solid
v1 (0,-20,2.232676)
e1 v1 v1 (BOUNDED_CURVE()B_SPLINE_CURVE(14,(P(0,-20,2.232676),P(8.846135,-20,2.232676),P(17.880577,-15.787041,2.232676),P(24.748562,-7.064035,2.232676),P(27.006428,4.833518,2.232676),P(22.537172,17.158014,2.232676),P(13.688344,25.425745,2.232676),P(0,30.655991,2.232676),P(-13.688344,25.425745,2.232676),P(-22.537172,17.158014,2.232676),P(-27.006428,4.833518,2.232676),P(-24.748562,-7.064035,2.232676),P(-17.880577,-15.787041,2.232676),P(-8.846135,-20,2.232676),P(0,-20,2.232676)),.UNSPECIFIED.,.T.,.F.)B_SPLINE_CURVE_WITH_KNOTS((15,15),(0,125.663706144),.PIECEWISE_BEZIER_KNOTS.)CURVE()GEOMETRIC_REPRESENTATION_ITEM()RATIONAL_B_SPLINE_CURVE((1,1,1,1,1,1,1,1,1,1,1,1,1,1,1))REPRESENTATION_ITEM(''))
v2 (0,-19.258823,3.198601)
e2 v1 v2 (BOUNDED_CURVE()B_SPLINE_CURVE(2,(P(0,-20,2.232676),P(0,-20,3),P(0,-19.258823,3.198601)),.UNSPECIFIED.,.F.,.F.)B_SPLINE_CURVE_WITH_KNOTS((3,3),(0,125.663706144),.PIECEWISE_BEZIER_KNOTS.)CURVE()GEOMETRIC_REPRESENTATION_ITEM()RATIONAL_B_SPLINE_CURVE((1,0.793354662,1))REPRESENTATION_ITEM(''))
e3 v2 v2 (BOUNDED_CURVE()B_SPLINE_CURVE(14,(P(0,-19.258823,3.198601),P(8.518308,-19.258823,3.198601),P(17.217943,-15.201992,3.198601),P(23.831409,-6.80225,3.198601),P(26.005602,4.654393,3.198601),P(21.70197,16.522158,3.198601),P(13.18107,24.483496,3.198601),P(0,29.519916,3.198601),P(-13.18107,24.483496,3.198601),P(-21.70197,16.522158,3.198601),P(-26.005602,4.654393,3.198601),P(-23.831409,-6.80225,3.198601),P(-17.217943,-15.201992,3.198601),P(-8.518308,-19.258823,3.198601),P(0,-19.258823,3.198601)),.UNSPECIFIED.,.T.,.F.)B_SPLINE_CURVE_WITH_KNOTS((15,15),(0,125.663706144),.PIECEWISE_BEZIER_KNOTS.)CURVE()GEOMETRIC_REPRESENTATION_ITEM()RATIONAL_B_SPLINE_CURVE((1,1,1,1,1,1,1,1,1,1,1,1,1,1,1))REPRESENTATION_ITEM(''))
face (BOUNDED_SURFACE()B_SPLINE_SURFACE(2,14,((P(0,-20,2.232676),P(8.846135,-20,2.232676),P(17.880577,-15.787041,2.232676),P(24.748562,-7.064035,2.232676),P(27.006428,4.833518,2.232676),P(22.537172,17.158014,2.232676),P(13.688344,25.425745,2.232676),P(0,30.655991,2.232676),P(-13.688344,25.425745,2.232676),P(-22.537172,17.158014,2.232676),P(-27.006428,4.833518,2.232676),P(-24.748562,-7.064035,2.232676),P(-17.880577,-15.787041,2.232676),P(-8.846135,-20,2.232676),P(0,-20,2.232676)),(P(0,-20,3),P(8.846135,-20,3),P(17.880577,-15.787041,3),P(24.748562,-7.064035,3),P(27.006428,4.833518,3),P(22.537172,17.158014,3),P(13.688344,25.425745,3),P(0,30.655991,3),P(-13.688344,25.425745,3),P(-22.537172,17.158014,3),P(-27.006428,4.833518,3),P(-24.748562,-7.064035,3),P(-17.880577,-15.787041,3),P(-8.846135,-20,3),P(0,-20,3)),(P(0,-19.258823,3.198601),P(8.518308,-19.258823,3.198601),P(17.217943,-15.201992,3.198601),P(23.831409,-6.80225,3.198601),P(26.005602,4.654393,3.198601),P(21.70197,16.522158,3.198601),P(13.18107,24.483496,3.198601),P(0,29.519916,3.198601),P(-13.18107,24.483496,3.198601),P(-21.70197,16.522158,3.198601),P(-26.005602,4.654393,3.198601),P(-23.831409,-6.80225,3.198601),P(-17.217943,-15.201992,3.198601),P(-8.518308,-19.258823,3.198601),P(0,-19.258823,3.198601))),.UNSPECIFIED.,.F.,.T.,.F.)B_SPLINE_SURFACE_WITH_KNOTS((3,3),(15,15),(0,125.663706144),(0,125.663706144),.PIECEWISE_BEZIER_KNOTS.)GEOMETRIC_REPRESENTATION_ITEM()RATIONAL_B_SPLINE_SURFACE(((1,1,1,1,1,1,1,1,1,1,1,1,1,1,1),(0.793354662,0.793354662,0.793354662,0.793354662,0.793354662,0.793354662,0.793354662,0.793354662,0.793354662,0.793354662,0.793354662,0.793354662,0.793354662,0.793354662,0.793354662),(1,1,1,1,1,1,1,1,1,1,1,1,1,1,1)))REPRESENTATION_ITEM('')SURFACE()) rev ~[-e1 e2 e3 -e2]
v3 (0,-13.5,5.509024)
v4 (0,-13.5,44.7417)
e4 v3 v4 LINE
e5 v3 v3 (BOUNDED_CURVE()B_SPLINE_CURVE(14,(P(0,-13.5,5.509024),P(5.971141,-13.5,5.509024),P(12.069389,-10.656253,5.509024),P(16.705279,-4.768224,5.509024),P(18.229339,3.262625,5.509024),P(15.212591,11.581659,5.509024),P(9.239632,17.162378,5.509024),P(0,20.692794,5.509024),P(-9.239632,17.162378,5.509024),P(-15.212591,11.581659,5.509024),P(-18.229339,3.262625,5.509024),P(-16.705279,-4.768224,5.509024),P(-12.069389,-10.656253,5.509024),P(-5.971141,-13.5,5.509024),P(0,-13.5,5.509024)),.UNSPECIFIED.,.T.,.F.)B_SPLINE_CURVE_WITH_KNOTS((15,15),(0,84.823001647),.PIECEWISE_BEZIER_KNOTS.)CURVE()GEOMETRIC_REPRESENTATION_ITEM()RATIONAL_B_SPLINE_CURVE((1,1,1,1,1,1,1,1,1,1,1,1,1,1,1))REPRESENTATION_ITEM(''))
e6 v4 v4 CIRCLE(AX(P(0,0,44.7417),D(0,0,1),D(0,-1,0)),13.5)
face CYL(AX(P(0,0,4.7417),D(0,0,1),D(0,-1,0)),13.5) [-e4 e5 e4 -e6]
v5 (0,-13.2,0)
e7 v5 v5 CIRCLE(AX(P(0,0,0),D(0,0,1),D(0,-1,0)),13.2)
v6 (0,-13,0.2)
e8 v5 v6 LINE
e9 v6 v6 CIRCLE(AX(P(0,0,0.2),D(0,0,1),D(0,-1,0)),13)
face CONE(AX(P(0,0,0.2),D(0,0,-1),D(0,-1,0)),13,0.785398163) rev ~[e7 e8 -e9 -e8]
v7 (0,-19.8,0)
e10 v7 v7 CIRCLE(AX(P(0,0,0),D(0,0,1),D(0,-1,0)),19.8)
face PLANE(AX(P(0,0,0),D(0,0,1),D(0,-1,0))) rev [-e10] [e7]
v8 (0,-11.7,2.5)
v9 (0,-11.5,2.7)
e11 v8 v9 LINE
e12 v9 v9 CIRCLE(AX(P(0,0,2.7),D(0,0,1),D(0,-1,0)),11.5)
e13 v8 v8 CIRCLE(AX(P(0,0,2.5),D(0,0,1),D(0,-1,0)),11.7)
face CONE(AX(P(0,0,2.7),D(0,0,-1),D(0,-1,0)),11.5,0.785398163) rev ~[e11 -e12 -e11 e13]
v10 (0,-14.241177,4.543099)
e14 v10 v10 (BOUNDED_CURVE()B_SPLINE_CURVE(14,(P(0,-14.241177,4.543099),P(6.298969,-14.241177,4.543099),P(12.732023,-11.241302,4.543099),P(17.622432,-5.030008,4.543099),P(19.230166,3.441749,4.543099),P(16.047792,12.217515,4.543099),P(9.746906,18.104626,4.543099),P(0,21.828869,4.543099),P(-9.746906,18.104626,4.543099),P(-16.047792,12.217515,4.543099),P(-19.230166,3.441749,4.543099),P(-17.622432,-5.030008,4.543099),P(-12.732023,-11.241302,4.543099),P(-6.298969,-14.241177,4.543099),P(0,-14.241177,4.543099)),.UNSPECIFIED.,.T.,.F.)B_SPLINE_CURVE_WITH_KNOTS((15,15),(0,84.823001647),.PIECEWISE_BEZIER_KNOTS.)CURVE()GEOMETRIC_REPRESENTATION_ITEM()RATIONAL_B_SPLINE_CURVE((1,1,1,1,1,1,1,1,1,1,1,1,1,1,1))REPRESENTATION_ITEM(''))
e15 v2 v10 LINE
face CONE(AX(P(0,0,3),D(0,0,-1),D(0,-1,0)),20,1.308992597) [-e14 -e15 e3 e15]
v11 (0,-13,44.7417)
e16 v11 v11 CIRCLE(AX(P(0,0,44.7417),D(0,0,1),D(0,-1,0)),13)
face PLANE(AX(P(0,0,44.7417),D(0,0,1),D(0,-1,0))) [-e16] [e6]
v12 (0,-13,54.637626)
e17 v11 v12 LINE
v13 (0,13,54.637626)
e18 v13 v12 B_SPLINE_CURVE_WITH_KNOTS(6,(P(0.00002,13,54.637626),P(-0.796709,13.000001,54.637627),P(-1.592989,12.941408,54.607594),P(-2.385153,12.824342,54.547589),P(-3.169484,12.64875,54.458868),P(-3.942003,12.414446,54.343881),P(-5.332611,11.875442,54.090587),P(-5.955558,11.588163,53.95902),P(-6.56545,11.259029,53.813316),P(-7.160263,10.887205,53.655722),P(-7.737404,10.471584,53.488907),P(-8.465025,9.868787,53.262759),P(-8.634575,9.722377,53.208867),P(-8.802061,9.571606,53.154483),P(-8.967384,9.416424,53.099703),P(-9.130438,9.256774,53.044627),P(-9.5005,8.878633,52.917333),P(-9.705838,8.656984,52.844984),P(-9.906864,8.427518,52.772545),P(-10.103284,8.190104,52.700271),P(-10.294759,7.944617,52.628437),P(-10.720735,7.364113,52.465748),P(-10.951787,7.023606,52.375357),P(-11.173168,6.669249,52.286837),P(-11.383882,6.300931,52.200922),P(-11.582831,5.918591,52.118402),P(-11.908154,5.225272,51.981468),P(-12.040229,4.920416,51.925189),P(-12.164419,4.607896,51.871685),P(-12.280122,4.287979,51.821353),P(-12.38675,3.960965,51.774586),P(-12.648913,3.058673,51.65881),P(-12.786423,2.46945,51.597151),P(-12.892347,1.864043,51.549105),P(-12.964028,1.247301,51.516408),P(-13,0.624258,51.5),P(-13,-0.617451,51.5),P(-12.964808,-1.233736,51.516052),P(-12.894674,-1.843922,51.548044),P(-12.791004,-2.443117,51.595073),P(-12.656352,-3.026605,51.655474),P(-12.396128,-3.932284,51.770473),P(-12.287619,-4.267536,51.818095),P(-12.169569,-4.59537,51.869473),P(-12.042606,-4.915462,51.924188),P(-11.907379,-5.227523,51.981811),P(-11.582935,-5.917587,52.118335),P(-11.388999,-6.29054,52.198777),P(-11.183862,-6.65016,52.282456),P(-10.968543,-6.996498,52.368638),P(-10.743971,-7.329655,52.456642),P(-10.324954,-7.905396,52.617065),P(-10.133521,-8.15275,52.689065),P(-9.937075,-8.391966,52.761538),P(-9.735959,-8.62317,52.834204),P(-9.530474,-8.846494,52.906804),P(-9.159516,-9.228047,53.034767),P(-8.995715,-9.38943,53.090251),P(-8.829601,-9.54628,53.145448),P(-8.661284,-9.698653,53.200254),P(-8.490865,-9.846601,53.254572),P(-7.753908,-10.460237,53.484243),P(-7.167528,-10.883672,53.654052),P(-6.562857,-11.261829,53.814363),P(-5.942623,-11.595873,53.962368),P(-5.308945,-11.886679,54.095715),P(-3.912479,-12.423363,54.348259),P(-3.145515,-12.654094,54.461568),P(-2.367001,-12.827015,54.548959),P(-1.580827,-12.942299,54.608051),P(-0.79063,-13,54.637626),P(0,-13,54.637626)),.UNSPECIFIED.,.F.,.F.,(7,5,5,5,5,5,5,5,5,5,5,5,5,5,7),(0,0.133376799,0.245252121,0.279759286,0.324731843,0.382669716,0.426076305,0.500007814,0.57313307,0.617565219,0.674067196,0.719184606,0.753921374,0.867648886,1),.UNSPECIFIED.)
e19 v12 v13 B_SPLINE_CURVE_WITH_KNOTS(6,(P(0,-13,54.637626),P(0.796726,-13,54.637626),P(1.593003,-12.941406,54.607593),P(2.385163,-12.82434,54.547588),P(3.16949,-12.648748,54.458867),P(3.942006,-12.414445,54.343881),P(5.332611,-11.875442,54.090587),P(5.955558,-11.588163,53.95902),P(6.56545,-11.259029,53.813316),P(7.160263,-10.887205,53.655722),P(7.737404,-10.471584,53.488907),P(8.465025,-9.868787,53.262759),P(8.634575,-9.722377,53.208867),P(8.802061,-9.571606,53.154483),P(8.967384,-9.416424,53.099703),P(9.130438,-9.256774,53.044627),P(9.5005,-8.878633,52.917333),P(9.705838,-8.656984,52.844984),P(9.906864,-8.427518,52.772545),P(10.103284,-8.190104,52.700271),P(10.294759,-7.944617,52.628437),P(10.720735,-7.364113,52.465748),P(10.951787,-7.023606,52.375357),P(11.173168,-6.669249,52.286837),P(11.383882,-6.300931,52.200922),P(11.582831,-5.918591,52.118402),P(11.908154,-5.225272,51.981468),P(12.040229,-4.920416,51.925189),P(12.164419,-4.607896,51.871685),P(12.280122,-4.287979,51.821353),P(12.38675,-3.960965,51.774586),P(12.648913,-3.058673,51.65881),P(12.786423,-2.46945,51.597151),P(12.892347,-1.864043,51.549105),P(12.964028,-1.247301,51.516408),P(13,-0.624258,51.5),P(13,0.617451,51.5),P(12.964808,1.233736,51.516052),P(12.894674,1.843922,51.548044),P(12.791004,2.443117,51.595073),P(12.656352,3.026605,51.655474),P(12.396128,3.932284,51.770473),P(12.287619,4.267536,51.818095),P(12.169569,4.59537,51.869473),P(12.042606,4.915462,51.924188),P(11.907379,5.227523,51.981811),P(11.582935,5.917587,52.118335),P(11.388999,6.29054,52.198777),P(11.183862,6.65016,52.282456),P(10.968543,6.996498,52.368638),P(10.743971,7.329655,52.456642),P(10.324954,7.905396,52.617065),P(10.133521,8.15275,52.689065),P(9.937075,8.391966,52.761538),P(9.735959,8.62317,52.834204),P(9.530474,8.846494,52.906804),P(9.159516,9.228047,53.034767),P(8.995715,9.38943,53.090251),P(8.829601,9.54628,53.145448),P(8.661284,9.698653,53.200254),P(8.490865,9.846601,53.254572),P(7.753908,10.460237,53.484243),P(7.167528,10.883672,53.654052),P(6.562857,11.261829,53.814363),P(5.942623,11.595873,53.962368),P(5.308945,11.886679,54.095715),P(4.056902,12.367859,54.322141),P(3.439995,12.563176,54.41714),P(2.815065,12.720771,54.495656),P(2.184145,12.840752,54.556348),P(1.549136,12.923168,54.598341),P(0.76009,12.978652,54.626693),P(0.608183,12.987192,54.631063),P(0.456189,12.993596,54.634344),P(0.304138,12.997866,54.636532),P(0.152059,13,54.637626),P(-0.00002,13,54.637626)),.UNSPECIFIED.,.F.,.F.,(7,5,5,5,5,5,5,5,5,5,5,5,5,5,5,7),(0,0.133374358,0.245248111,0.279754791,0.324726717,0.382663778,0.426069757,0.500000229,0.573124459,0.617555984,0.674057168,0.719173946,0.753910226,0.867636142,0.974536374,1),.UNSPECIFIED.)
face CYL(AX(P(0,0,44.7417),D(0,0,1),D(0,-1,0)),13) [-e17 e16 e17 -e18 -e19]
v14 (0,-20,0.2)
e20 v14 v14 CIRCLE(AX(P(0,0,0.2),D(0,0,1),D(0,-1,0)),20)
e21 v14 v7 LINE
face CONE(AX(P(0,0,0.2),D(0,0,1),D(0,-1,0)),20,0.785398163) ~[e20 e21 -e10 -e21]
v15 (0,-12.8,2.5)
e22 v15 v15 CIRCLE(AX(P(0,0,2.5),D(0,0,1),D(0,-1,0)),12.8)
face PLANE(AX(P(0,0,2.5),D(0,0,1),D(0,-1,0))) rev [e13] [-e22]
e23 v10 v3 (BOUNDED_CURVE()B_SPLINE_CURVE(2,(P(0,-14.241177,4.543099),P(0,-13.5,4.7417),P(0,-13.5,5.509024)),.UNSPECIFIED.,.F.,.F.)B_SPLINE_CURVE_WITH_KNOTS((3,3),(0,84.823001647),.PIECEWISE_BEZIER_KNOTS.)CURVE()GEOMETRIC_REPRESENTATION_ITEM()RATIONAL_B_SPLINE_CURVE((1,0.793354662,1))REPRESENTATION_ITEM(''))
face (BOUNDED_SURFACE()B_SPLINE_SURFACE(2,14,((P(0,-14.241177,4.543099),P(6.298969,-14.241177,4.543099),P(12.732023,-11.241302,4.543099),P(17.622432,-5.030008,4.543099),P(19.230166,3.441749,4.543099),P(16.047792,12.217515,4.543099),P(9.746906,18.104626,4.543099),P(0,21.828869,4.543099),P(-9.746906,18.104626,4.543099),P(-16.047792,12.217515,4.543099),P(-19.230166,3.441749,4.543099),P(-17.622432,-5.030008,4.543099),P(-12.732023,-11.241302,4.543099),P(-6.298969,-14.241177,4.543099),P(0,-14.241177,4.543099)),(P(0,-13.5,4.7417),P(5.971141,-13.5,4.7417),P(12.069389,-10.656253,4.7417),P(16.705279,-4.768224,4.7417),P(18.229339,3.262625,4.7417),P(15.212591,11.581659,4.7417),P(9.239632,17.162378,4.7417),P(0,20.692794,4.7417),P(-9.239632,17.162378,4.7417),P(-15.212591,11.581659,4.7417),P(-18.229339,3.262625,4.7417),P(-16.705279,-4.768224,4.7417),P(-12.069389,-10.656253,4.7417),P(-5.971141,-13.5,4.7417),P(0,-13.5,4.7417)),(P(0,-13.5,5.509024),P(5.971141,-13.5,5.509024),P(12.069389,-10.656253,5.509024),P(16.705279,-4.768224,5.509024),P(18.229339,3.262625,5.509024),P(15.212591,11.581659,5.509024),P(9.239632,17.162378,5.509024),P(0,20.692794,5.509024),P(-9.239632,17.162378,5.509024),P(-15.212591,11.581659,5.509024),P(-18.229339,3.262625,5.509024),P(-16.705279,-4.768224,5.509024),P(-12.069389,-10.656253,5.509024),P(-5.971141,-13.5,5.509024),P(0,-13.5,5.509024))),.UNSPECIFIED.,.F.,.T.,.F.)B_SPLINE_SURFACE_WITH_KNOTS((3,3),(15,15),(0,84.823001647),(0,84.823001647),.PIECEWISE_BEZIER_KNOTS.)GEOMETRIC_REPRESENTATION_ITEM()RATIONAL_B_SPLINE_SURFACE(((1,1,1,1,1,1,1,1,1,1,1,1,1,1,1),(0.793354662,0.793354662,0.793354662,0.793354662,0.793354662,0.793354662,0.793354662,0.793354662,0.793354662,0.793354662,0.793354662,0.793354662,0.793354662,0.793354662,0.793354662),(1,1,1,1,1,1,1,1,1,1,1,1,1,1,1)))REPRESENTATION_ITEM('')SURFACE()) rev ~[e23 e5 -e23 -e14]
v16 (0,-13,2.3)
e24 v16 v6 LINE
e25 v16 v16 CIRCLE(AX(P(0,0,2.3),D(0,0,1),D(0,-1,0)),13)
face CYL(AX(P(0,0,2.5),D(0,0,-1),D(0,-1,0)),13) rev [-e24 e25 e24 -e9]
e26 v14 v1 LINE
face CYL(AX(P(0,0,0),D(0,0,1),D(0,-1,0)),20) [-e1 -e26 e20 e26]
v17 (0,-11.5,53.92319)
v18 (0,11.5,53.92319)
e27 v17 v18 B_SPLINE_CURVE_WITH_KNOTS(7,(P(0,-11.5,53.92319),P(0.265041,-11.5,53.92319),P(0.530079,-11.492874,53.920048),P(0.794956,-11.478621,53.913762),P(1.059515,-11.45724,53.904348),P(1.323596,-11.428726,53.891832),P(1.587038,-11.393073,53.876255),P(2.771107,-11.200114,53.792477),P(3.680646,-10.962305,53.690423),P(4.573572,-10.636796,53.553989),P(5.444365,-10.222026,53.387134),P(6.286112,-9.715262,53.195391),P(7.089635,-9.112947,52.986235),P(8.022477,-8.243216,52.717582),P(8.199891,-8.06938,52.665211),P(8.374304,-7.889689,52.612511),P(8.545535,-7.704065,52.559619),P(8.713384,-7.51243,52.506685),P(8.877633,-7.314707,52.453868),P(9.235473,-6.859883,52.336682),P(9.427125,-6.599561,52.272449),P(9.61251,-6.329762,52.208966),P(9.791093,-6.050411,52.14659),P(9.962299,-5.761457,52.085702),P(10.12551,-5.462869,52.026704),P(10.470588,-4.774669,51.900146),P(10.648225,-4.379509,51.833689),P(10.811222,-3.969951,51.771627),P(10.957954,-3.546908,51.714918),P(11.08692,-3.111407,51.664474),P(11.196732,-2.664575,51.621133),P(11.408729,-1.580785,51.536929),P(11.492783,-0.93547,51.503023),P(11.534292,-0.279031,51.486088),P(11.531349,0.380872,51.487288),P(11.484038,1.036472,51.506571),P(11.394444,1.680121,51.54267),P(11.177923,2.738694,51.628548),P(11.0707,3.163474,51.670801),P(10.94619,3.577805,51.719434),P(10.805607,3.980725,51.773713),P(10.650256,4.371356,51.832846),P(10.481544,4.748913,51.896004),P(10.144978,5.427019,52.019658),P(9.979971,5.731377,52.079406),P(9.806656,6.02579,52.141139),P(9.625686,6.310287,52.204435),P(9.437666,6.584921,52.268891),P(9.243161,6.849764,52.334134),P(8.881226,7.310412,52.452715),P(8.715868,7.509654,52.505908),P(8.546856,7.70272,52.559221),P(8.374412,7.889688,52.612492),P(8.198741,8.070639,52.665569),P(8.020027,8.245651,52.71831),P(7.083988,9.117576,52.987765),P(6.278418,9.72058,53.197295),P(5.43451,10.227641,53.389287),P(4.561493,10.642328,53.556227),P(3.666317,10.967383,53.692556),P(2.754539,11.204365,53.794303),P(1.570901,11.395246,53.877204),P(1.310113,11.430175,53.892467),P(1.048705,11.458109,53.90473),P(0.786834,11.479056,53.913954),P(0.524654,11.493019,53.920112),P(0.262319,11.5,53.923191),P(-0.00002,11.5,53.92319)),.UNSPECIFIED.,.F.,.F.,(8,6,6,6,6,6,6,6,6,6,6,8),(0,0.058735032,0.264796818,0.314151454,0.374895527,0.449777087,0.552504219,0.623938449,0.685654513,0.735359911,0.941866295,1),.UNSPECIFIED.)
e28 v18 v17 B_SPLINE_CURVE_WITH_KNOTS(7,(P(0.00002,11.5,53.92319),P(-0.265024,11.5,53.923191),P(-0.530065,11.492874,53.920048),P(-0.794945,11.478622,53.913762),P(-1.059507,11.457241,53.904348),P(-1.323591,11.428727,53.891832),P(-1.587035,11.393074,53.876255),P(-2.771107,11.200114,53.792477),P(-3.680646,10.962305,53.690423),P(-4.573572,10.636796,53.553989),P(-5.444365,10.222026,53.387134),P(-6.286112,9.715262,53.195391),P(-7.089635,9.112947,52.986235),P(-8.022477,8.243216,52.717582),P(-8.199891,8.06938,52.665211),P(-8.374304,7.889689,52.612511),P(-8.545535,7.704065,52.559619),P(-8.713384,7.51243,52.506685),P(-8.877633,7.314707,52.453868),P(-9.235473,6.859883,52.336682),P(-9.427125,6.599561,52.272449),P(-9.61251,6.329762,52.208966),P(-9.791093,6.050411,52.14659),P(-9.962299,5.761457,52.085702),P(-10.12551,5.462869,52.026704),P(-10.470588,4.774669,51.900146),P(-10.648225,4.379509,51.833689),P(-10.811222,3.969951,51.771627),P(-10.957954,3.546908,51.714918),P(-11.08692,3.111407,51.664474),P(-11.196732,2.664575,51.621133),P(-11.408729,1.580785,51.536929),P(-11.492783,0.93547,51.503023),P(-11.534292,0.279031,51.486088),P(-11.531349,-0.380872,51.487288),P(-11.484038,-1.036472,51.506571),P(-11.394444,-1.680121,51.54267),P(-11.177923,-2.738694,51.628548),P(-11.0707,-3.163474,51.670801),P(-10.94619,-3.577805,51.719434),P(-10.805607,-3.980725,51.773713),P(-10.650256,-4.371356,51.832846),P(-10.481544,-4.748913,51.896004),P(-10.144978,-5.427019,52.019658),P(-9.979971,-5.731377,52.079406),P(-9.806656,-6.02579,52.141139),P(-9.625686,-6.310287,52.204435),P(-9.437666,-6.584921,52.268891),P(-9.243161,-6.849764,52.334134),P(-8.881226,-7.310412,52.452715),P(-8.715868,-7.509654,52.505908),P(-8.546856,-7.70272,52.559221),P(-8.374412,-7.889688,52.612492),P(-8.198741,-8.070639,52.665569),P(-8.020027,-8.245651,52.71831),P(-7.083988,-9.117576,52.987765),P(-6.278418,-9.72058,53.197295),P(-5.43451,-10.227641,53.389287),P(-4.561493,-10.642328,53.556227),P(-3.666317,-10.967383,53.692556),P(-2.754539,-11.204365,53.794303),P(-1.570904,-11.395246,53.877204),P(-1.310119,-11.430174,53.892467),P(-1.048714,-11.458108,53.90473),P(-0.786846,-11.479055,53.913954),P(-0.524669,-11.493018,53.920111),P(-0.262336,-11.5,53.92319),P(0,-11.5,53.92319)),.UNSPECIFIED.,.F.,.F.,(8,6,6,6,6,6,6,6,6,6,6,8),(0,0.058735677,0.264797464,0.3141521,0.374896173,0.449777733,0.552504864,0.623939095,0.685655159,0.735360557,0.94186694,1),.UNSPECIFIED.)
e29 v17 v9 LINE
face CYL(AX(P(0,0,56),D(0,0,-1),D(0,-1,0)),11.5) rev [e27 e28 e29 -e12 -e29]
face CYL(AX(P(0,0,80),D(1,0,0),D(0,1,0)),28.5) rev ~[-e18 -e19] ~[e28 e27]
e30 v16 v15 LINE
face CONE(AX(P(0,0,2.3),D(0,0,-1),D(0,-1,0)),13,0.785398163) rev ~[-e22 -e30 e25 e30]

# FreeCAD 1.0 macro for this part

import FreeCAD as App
import Part
import Sketcher
Q = App.Units.Quantity


def edges_at(feature, points):
    """Names of the edges that pass closest to the given points."""
    edges = feature.Shape.Edges
    near = lambda p: min(range(len(edges)), key=lambda i: edges[i].distToShape(Part.Vertex(*p))[0])
    return sorted({f"Edge{near(p) + 1}" for p in points})


def add_polygon(sketch, points):
    """Adds a closed chain of lines whose ends are joined by coincident constraints."""
    first, n = sketch.GeometryCount, len(points)
    for a, b in zip(points, points[1:] + points[:1]):
        sketch.addGeometry(Part.LineSegment(App.Vector(*a, 0), App.Vector(*b, 0)), False)
    for i in range(n):
        sketch.addConstraint(Sketcher.Constraint("Coincident", first + i, 2, first + (i + 1) % n, 1))

doc = App.newDocument("Part")
body = doc.addObject("PartDesign::Body", "Body")

sketch1 = body.newObject("Sketcher::SketchObject", "Sketch")
sketch1.AttachmentSupport = (doc.getObject("YZ_Plane"), [""])
sketch1.MapMode = "FlatFace"
add_polygon(sketch1, [(-11.5, 2.5), (-11.5, 56), (-13, 56), (-13, 44.7), (-13.5, 44.7), (-13.5, 4.7), (-20, 3), (-20, 0), (-13, 0), (-13, 2.5)])
sketch1.addConstraint([
    Sketcher.Constraint("Vertical", 0),
    Sketcher.Constraint("Horizontal", 1),
    Sketcher.Constraint("Vertical", 2),
    Sketcher.Constraint("Horizontal", 3),
    Sketcher.Constraint("Vertical", 4),
    Sketcher.Constraint("Vertical", 6),
    Sketcher.Constraint("Horizontal", 7),
    Sketcher.Constraint("Vertical", 8),
    Sketcher.Constraint("Horizontal", 9),
    Sketcher.Constraint("PointOnObject", 6, 2, -1),
    Sketcher.Constraint("Vertical", 2, 2, 7, 2),
    Sketcher.Constraint("DistanceY", 4, 2, 4, 1, 40.0),
    Sketcher.Constraint("DistanceY", 6, 2, 6, 1, 3.0),
    Sketcher.Constraint("DistanceY", 8, 1, 8, 2, 2.5),
    Sketcher.Constraint("DistanceY", -1, 1, 0, 2, 56.0),
    Sketcher.Constraint("DistanceX", 7, 1, 7, 2, 7.0),
    Sketcher.Constraint("Angle", 5, Q("-164.9998 deg")),
    Sketcher.Constraint("DistanceX", 1, 2, 1, 1, 1.5),
    Sketcher.Constraint("DistanceX", 3, 2, 3, 1, 0.5),
    Sketcher.Constraint("DistanceX", 1, 2, -1, 1, 13.0),
])
revolution = body.newObject("PartDesign::Revolution", "Revolution")
revolution.Profile = sketch1
revolution.ReferenceAxis = (sketch1, ["V_Axis"])
revolution.Angle = 360
doc.recompute()

fillet = body.newObject("PartDesign::Fillet", "Fillet")
fillet.Base = (revolution, edges_at(revolution, [(0, 20, 3), (0, 13.5, 4.742)]))
fillet.Radius = 1

sketch2 = body.newObject("Sketcher::SketchObject", "Sketch001")
sketch2.AttachmentSupport = (doc.getObject("YZ_Plane"), [""])
sketch2.MapMode = "FlatFace"
sketch2.addGeometry(Part.Circle(App.Vector(0, 80, 0), App.Vector(0, 0, 1), 28), False)
sketch2.addConstraint([
    Sketcher.Constraint("PointOnObject", 0, 3, -2),
    Sketcher.Constraint("Diameter", 0, 57.0),
    Sketcher.Constraint("DistanceY", -1, 1, 0, 3, 80.0),
])
pocket1 = body.newObject("PartDesign::Pocket", "Pocket")
pocket1.Profile = sketch2
pocket1.Type = "ThroughAll"
pocket1.Midplane = True
doc.recompute()

chamfer = body.newObject("PartDesign::Chamfer", "Chamfer")
chamfer.Base = (pocket1, edges_at(pocket1, [
    (0, 20, 0),
    (0, 13, 0),
    (0, 11.5, 2.5),
    (0, 13, 2.5),
]))
chamfer.Size = 0.2

doc.recompute()
